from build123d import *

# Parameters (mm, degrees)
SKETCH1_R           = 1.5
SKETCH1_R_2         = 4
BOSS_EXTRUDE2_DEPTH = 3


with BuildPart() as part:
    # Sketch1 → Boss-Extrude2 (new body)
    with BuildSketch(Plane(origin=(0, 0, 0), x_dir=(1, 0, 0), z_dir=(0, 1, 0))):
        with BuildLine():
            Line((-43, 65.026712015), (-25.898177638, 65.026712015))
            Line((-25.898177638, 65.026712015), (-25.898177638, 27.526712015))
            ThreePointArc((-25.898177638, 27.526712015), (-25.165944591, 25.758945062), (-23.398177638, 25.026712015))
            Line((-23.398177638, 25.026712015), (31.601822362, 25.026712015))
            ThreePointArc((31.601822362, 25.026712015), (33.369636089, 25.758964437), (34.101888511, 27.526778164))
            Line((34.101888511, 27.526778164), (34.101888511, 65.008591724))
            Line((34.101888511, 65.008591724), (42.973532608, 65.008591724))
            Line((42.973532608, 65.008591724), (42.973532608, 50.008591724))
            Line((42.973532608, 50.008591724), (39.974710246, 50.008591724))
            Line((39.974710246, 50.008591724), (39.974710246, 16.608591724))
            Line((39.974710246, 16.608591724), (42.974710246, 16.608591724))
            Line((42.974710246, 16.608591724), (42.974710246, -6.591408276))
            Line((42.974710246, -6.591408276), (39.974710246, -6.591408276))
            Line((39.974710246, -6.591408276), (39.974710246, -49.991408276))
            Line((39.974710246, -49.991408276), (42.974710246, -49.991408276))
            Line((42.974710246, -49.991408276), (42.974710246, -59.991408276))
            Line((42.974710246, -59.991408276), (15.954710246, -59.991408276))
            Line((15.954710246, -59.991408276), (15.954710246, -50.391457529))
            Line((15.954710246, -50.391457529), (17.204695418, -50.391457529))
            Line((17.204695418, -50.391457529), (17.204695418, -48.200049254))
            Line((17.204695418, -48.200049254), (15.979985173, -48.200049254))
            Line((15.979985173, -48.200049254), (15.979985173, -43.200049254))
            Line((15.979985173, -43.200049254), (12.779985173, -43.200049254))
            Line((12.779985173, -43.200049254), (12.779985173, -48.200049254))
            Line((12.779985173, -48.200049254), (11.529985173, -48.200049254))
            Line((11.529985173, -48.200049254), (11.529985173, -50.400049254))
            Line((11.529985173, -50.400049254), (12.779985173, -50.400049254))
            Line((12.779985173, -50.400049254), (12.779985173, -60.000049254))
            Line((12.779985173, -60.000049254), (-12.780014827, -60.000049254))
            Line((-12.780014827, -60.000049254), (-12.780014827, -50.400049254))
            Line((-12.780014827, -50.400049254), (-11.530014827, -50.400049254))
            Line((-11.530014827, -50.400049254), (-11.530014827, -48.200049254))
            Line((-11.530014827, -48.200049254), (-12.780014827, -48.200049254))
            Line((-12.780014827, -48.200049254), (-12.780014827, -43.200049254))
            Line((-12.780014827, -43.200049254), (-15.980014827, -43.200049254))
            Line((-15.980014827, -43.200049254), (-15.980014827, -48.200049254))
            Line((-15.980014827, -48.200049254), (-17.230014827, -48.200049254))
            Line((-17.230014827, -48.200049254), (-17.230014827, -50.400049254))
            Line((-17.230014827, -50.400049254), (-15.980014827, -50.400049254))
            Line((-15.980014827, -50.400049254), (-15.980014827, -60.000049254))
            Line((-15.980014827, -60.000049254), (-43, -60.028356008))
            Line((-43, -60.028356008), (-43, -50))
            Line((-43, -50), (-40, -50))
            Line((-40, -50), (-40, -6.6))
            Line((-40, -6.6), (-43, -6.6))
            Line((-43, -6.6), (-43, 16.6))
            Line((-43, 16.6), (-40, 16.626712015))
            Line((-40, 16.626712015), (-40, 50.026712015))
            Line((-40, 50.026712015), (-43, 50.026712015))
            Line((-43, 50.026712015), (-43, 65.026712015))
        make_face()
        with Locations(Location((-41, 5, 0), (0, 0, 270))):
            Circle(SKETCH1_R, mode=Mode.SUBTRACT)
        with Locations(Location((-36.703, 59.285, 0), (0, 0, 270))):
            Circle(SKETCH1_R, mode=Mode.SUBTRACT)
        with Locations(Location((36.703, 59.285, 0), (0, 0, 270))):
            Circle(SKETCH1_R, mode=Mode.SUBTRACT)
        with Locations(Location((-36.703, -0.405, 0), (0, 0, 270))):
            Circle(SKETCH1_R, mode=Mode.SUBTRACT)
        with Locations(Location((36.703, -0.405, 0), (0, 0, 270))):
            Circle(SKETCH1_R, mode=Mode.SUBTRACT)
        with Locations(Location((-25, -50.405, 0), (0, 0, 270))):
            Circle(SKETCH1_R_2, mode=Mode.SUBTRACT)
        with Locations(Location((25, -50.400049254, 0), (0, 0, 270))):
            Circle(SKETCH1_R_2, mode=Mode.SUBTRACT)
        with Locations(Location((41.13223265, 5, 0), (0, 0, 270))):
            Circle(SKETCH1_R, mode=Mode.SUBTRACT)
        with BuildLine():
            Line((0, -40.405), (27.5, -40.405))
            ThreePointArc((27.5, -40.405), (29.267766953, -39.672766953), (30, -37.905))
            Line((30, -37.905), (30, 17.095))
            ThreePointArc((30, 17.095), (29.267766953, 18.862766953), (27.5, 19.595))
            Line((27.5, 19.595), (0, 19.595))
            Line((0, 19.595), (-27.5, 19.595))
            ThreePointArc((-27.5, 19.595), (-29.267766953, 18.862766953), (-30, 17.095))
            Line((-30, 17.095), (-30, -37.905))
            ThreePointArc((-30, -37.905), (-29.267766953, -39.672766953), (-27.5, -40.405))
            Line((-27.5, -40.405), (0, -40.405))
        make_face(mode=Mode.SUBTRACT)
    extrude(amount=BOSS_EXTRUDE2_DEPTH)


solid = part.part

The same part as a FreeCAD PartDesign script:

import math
import FreeCAD as App
import Part
import Sketcher
Q = App.Units.Quantity

doc = App.newDocument("Part")
body = doc.addObject("PartDesign::Body", "Body")

sketch1 = body.newObject("Sketcher::SketchObject", "Sketch")
sketch1.AttachmentSupport = (doc.getObject("XZ_Plane"), [""])
sketch1.MapMode = "FlatFace"
sketch1.addGeometry([
    Part.LineSegment(App.Vector(-25.9, -65, 0), App.Vector(-43, -65, 0)),
    Part.LineSegment(App.Vector(-43, -65, 0), App.Vector(-43, -50, 0)),
    Part.LineSegment(App.Vector(-43, -50, 0), App.Vector(-40, -50, 0)),
    Part.LineSegment(App.Vector(-40, -50, 0), App.Vector(-40, -16.6, 0)),
    Part.LineSegment(App.Vector(-40, -16.6, 0), App.Vector(-43, -16.6, 0)),
    Part.LineSegment(App.Vector(-43, -16.6, 0), App.Vector(-43, 6.6, 0)),
    Part.LineSegment(App.Vector(-43, 6.6, 0), App.Vector(-40, 6.6, 0)),
    Part.LineSegment(App.Vector(-40, 6.6, 0), App.Vector(-40, 50, 0)),
    Part.LineSegment(App.Vector(-40, 50, 0), App.Vector(-43, 50, 0)),
    Part.LineSegment(App.Vector(-43, 50, 0), App.Vector(-43, 60, 0)),
    Part.LineSegment(App.Vector(-43, 60, 0), App.Vector(-16, 60, 0)),
    Part.LineSegment(App.Vector(-16, 60, 0), App.Vector(-16, 50.4, 0)),
    Part.LineSegment(App.Vector(-16, 50.4, 0), App.Vector(-17.2, 50.4, 0)),
    Part.LineSegment(App.Vector(-17.2, 50.4, 0), App.Vector(-17.2, 48.2, 0)),
    Part.LineSegment(App.Vector(-17.2, 48.2, 0), App.Vector(-16, 48.2, 0)),
    Part.LineSegment(App.Vector(-16, 48.2, 0), App.Vector(-16, 43.2, 0)),
    Part.LineSegment(App.Vector(-16, 43.2, 0), App.Vector(-12.8, 43.2, 0)),
    Part.LineSegment(App.Vector(-12.8, 43.2, 0), App.Vector(-12.8, 48.2, 0)),
    Part.LineSegment(App.Vector(-12.8, 48.2, 0), App.Vector(-11.5, 48.2, 0)),
    Part.LineSegment(App.Vector(-11.5, 48.2, 0), App.Vector(-11.5, 50.4, 0)),
    Part.LineSegment(App.Vector(-11.5, 50.4, 0), App.Vector(-12.8, 50.4, 0)),
    Part.LineSegment(App.Vector(-12.8, 50.4, 0), App.Vector(-12.8, 60, 0)),
    Part.LineSegment(App.Vector(-12.8, 60, 0), App.Vector(12.8, 60, 0)),
    Part.LineSegment(App.Vector(12.8, 60, 0), App.Vector(12.8, 50.4, 0)),
    Part.LineSegment(App.Vector(12.8, 50.4, 0), App.Vector(11.5, 50.4, 0)),
    Part.LineSegment(App.Vector(11.5, 50.4, 0), App.Vector(11.5, 48.2, 0)),
    Part.LineSegment(App.Vector(11.5, 48.2, 0), App.Vector(12.8, 48.2, 0)),
    Part.LineSegment(App.Vector(12.8, 48.2, 0), App.Vector(12.8, 43.2, 0)),
    Part.LineSegment(App.Vector(12.8, 43.2, 0), App.Vector(16, 43.2, 0)),
    Part.LineSegment(App.Vector(16, 43.2, 0), App.Vector(16, 48.2, 0)),
    Part.LineSegment(App.Vector(16, 48.2, 0), App.Vector(17.2, 48.2, 0)),
    Part.LineSegment(App.Vector(17.2, 48.2, 0), App.Vector(17.2, 50.4, 0)),
    Part.LineSegment(App.Vector(17.2, 50.4, 0), App.Vector(16, 50.4, 0)),
    Part.LineSegment(App.Vector(16, 50.4, 0), App.Vector(16, 60, 0)),
    Part.LineSegment(App.Vector(16, 60, 0), App.Vector(43, 60, 0)),
    Part.LineSegment(App.Vector(43, 60, 0), App.Vector(43, 50, 0)),
    Part.LineSegment(App.Vector(43, 50, 0), App.Vector(40, 50, 0)),
    Part.LineSegment(App.Vector(40, 50, 0), App.Vector(40, 6.6, 0)),
    Part.LineSegment(App.Vector(40, 6.6, 0), App.Vector(43, 6.6, 0)),
    Part.LineSegment(App.Vector(43, 6.6, 0), App.Vector(43, -16.6, 0)),
    Part.LineSegment(App.Vector(43, -16.6, 0), App.Vector(40, -16.6, 0)),
    Part.LineSegment(App.Vector(40, -16.6, 0), App.Vector(40, -50, 0)),
    Part.LineSegment(App.Vector(40, -50, 0), App.Vector(43, -50, 0)),
    Part.LineSegment(App.Vector(43, -50, 0), App.Vector(43, -65, 0)),
    Part.LineSegment(App.Vector(43, -65, 0), App.Vector(34.1, -65, 0)),
    Part.LineSegment(App.Vector(34.1, -65, 0), App.Vector(34.1, -27.5, 0)),
    Part.ArcOfCircle(Part.Circle(App.Vector(31.6, -27.5, 0), App.Vector(0, 0, 1), 2.5), math.radians(0), math.radians(90)),
    Part.LineSegment(App.Vector(31.6, -25, 0), App.Vector(-23.4, -25, 0)),
    Part.ArcOfCircle(Part.Circle(App.Vector(-23.4, -27.5, 0), App.Vector(0, 0, 1), 2.5), math.radians(90), math.radians(180)),
    Part.LineSegment(App.Vector(-25.9, -27.5, 0), App.Vector(-25.9, -65, 0)),
    Part.Circle(App.Vector(25, 50.4, 0), App.Vector(0, 0, 1), 4),
    Part.Circle(App.Vector(36.7, 0.4, 0), App.Vector(0, 0, 1), 1.5),
    Part.Circle(App.Vector(-25, 50.4, 0), App.Vector(0, 0, 1), 4),
    Part.LineSegment(App.Vector(27.5, 40.4, 0), App.Vector(-27.5, 40.4, 0)),
    Part.ArcOfCircle(Part.Circle(App.Vector(-27.5, 37.9, 0), App.Vector(0, 0, 1), 2.5), math.radians(90), math.radians(180)),
    Part.LineSegment(App.Vector(-30, 37.9, 0), App.Vector(-30, -17.1, 0)),
    Part.ArcOfCircle(Part.Circle(App.Vector(-27.5, -17.1, 0), App.Vector(0, 0, 1), 2.5), math.radians(180), math.radians(270)),
    Part.LineSegment(App.Vector(-27.5, -19.6, 0), App.Vector(27.5, -19.6, 0)),
    Part.ArcOfCircle(Part.Circle(App.Vector(27.5, -17.1, 0), App.Vector(0, 0, 1), 2.5), math.radians(-90), math.radians(0)),
    Part.LineSegment(App.Vector(30, -17.1, 0), App.Vector(30, 37.9, 0)),
    Part.ArcOfCircle(Part.Circle(App.Vector(27.5, 37.9, 0), App.Vector(0, 0, 1), 2.5), math.radians(0), math.radians(90)),
    Part.Circle(App.Vector(-36.7, 0.4, 0), App.Vector(0, 0, 1), 1.5),
    Part.Circle(App.Vector(41.1, -5, 0), App.Vector(0, 0, 1), 1.5),
    Part.Circle(App.Vector(36.7, -59.3, 0), App.Vector(0, 0, 1), 1.5),
    Part.Circle(App.Vector(-41, -5, 0), App.Vector(0, 0, 1), 1.5),
    Part.Circle(App.Vector(-36.7, -59.3, 0), App.Vector(0, 0, 1), 1.5),
], False)
sketch1.addConstraint([
    Sketcher.Constraint("Coincident", 0, 2, 1, 1),
    Sketcher.Constraint("Coincident", 1, 2, 2, 1),
    Sketcher.Constraint("Coincident", 2, 2, 3, 1),
    Sketcher.Constraint("Coincident", 3, 2, 4, 1),
    Sketcher.Constraint("Coincident", 4, 2, 5, 1),
    Sketcher.Constraint("Coincident", 5, 2, 6, 1),
    Sketcher.Constraint("Coincident", 6, 2, 7, 1),
    Sketcher.Constraint("Coincident", 7, 2, 8, 1),
    Sketcher.Constraint("Coincident", 8, 2, 9, 1),
    Sketcher.Constraint("Coincident", 9, 2, 10, 1),
    Sketcher.Constraint("Coincident", 10, 2, 11, 1),
    Sketcher.Constraint("Coincident", 11, 2, 12, 1),
    Sketcher.Constraint("Coincident", 12, 2, 13, 1),
    Sketcher.Constraint("Coincident", 13, 2, 14, 1),
    Sketcher.Constraint("Coincident", 14, 2, 15, 1),
    Sketcher.Constraint("Coincident", 15, 2, 16, 1),
    Sketcher.Constraint("Coincident", 16, 2, 17, 1),
    Sketcher.Constraint("Coincident", 17, 2, 18, 1),
    Sketcher.Constraint("Coincident", 18, 2, 19, 1),
    Sketcher.Constraint("Coincident", 19, 2, 20, 1),
    Sketcher.Constraint("Coincident", 20, 2, 21, 1),
    Sketcher.Constraint("Coincident", 21, 2, 22, 1),
    Sketcher.Constraint("Coincident", 22, 2, 23, 1),
    Sketcher.Constraint("Coincident", 23, 2, 24, 1),
    Sketcher.Constraint("Coincident", 24, 2, 25, 1),
    Sketcher.Constraint("Coincident", 25, 2, 26, 1),
    Sketcher.Constraint("Coincident", 26, 2, 27, 1),
    Sketcher.Constraint("Coincident", 27, 2, 28, 1),
    Sketcher.Constraint("Coincident", 28, 2, 29, 1),
    Sketcher.Constraint("Coincident", 29, 2, 30, 1),
    Sketcher.Constraint("Coincident", 30, 2, 31, 1),
    Sketcher.Constraint("Coincident", 31, 2, 32, 1),
    Sketcher.Constraint("Coincident", 32, 2, 33, 1),
    Sketcher.Constraint("Coincident", 33, 2, 34, 1),
    Sketcher.Constraint("Coincident", 34, 2, 35, 1),
    Sketcher.Constraint("Coincident", 35, 2, 36, 1),
    Sketcher.Constraint("Coincident", 36, 2, 37, 1),
    Sketcher.Constraint("Coincident", 37, 2, 38, 1),
    Sketcher.Constraint("Coincident", 38, 2, 39, 1),
    Sketcher.Constraint("Coincident", 39, 2, 40, 1),
    Sketcher.Constraint("Coincident", 40, 2, 41, 1),
    Sketcher.Constraint("Coincident", 41, 2, 42, 1),
    Sketcher.Constraint("Coincident", 42, 2, 43, 1),
    Sketcher.Constraint("Coincident", 43, 2, 44, 1),
    Sketcher.Constraint("Coincident", 44, 2, 45, 1),
    Sketcher.Constraint("Tangent", 45, 2, 46, 1),
    Sketcher.Constraint("Tangent", 46, 2, 47, 1),
    Sketcher.Constraint("Tangent", 47, 2, 48, 1),
    Sketcher.Constraint("Tangent", 48, 2, 49, 1),
    Sketcher.Constraint("Coincident", 49, 2, 0, 1),
    Sketcher.Constraint("Tangent", 53, 2, 54, 1),
    Sketcher.Constraint("Tangent", 54, 2, 55, 1),
    Sketcher.Constraint("Tangent", 55, 2, 56, 1),
    Sketcher.Constraint("Tangent", 56, 2, 57, 1),
    Sketcher.Constraint("Tangent", 57, 2, 58, 1),
    Sketcher.Constraint("Tangent", 58, 2, 59, 1),
    Sketcher.Constraint("Tangent", 59, 2, 60, 1),
    Sketcher.Constraint("Tangent", 60, 2, 53, 1),
    Sketcher.Constraint("Horizontal", 0),
    Sketcher.Constraint("Vertical", 1),
    Sketcher.Constraint("Horizontal", 2),
    Sketcher.Constraint("Vertical", 3),
    Sketcher.Constraint("Vertical", 5),
    Sketcher.Constraint("Horizontal", 6),
    Sketcher.Constraint("Vertical", 7),
    Sketcher.Constraint("Horizontal", 8),
    Sketcher.Constraint("Vertical", 9),
    Sketcher.Constraint("Vertical", 11),
    Sketcher.Constraint("Horizontal", 12),
    Sketcher.Constraint("Vertical", 13),
    Sketcher.Constraint("Horizontal", 14),
    Sketcher.Constraint("Vertical", 15),
    Sketcher.Constraint("Horizontal", 16),
    Sketcher.Constraint("Vertical", 17),
    Sketcher.Constraint("Horizontal", 18),
    Sketcher.Constraint("Vertical", 19),
    Sketcher.Constraint("Horizontal", 20),
    Sketcher.Constraint("Vertical", 21),
    Sketcher.Constraint("Horizontal", 22),
    Sketcher.Constraint("Vertical", 23),
    Sketcher.Constraint("Horizontal", 24),
    Sketcher.Constraint("Vertical", 25),
    Sketcher.Constraint("Horizontal", 26),
    Sketcher.Constraint("Vertical", 27),
    Sketcher.Constraint("Horizontal", 28),
    Sketcher.Constraint("Vertical", 29),
    Sketcher.Constraint("Horizontal", 30),
    Sketcher.Constraint("Vertical", 31),
    Sketcher.Constraint("Horizontal", 32),
    Sketcher.Constraint("Vertical", 33),
    Sketcher.Constraint("Horizontal", 34),
    Sketcher.Constraint("Vertical", 35),
    Sketcher.Constraint("Horizontal", 36),
    Sketcher.Constraint("Vertical", 37),
    Sketcher.Constraint("Horizontal", 38),
    Sketcher.Constraint("Vertical", 39),
    Sketcher.Constraint("Horizontal", 40),
    Sketcher.Constraint("Vertical", 41),
    Sketcher.Constraint("Horizontal", 42),
    Sketcher.Constraint("Vertical", 43),
    Sketcher.Constraint("Horizontal", 44),
    Sketcher.Constraint("Vertical", 45),
    Sketcher.Constraint("Horizontal", 47),
    Sketcher.Constraint("Vertical", 49),
    Sketcher.Constraint("Horizontal", 53),
    Sketcher.Constraint("Vertical", 55),
    Sketcher.Constraint("Horizontal", 57),
    Sketcher.Constraint("Vertical", 59),
    Sketcher.Constraint("Equal", 50, 52),
    Sketcher.Constraint("Equal", 48, 54),
    Sketcher.Constraint("Equal", 54, 56),
    Sketcher.Constraint("Equal", 56, 58),
    Sketcher.Constraint("Equal", 58, 60),
    Sketcher.Constraint("Equal", 51, 61),
    Sketcher.Constraint("Equal", 61, 62),
    Sketcher.Constraint("Equal", 62, 63),
    Sketcher.Constraint("Equal", 63, 64),
    Sketcher.Constraint("Equal", 64, 65),
    Sketcher.Constraint("Symmetric", 51, 3, 61, 3, -2),
    Sketcher.Constraint("Symmetric", 63, 3, 65, 3, -2),
    Sketcher.Constraint("Horizontal", 62, 3, 64, 3),
    Sketcher.Constraint("Horizontal", 50, 3, 11, 2),
    Sketcher.Constraint("Horizontal", 14, 2, 17, 2),
    Sketcher.Constraint("Horizontal", 12, 2, 19, 2),
    Sketcher.Constraint("Horizontal", 10, 2, 21, 2),
    Sketcher.Constraint("Horizontal", 20, 2, 23, 2),
    Sketcher.Constraint("Horizontal", 18, 2, 25, 2),
    Sketcher.Constraint("Horizontal", 16, 2, 27, 2),
    Sketcher.Constraint("Horizontal", 26, 2, 29, 2),
    Sketcher.Constraint("Vertical", 51, 3, 63, 3),
    Sketcher.Constraint("Vertical", 1, 2, 4, 2),
    Sketcher.Constraint("Vertical", 3, 2, 6, 2),
    Sketcher.Constraint("Vertical", 5, 2, 8, 2),
    Sketcher.Constraint("Vertical", 11, 2, 14, 2),
    Sketcher.Constraint("Vertical", 17, 2, 20, 2),
    Sketcher.Constraint("Vertical", 23, 2, 26, 2),
    Sketcher.Constraint("Vertical", 35, 2, 38, 2),
    Sketcher.Constraint("Vertical", 37, 2, 40, 2),
    Sketcher.Constraint("Equal", 14, 18),
    Sketcher.Constraint("Equal", 20, 24),
    Sketcher.Constraint("Equal", 16, 28),
    Sketcher.Constraint("Equal", 8, 36),
    Sketcher.Constraint("Equal", 47, 53),
    Sketcher.Constraint("Equal", 7, 37),
    Sketcher.Constraint("Equal", 5, 39),
    Sketcher.Constraint("Equal", 3, 41),
    Sketcher.Constraint("Equal", 1, 43),
    Sketcher.Constraint("Equal", 57, 55),
    Sketcher.Constraint("Diameter", 50, Q("8 mm")),
    Sketcher.Constraint("Diameter", 51, Q("3 mm")),
    Sketcher.Constraint("Radius", 48, Q("2.5 mm")),
    Sketcher.Constraint("DistanceX", 2, 1, 2, 2, Q("3 mm")),
    Sketcher.Constraint("DistanceX", 47, 2, 47, 1, Q("55 mm")),
    Sketcher.Constraint("DistanceY", 1, 1, 1, 2, Q("15 mm")),
    Sketcher.Constraint("DistanceY", 15, 2, 15, 1, Q("5 mm")),
    Sketcher.Constraint("DistanceY", 35, 2, 35, 1, Q("10 mm")),
    Sketcher.Constraint("DistanceX", 16, 1, 16, 2, Q("3.2 mm")),
    Sketcher.Constraint("DistanceY", 3, 1, 3, 2, Q("33.4 mm")),
    Sketcher.Constraint("DistanceY", 5, 1, 5, 2, Q("23.2 mm")),
    Sketcher.Constraint("DistanceY", 7, 1, 7, 2, Q("43.4 mm")),
    Sketcher.Constraint("DistanceY", 11, 2, 11, 1, Q("9.6 mm")),
    Sketcher.Constraint("DistanceY", 13, 2, 13, 1, Q("2.2 mm")),
    Sketcher.Constraint("DistanceY", 49, 2, 49, 1, Q("37.5 mm")),
    Sketcher.Constraint("DistanceX", -1, 1, 50, 3, Q("25 mm")),
    Sketcher.Constraint("DistanceX", 52, 3, -1, 1, Q("25 mm")),
    Sketcher.Constraint("DistanceY", 62, 3, -1, 1, Q("5 mm")),
    Sketcher.Constraint("DistanceX", 64, 3, -1, 1, Q("41 mm")),
    Sketcher.Constraint("DistanceX", 0, 2, -1, 1, Q("43 mm")),
    Sketcher.Constraint("DistanceY", -1, 1, 7, 2, Q("50 mm")),
    Sketcher.Constraint("DistanceX", 54, 2, -1, 1, Q("30 mm")),
    Sketcher.Constraint("DistanceX", 12, 2, 12, 1, Q("1.25 mm")),
    Sketcher.Constraint("DistanceX", 22, 1, 22, 2, Q("25.56 mm")),
    Sketcher.Constraint("DistanceX", 34, 1, 34, 2, Q("27.02 mm")),
    Sketcher.Constraint("Distance", 10, Q("27.02 mm")),
    Sketcher.Constraint("DistanceX", -1, 1, 51, 3, Q("36.703 mm")),
    Sketcher.Constraint("DistanceY", -1, 1, 51, 3, Q("0.405 mm")),
    Sketcher.Constraint("DistanceY", -1, 1, 52, 3, Q("50.405 mm")),
    Sketcher.Constraint("DistanceY", -1, 1, 54, 3, Q("37.905 mm")),
    Sketcher.Constraint("DistanceY", 63, 3, -1, 1, Q("59.285 mm")),
    Sketcher.Constraint("Radius", 46, Q("2.500066 mm")),
    Sketcher.Constraint("DistanceX", 30, 1, 30, 2, Q("1.22471 mm")),
    Sketcher.Constraint("DistanceY", 31, 1, 31, 2, Q("2.191408 mm")),
    Sketcher.Constraint("DistanceY", 33, 1, 33, 2, Q("9.599951 mm")),
    Sketcher.Constraint("DistanceX", 0, 2, 0, 1, Q("17.101822 mm")),
    Sketcher.Constraint("DistanceX", 32, 2, 32, 1, Q("1.249985 mm")),
    Sketcher.Constraint("DistanceX", 42, 1, 42, 2, Q("2.998822 mm")),
    Sketcher.Constraint("DistanceY", 9, 1, 9, 2, Q("10.028356 mm")),
    Sketcher.Constraint("DistanceY", 45, 1, 45, 2, Q("37.481814 mm")),
    Sketcher.Constraint("DistanceY", 46, 3, -1, 1, Q("27.526778 mm")),
    Sketcher.Constraint("DistanceX", -1, 1, 62, 3, Q("41.132233 mm")),
])
pad1 = body.newObject("PartDesign::Pad", "Pad")
pad1.Profile = sketch1
pad1.Length = 3
pad1.Reversed = True

doc.recompute()
